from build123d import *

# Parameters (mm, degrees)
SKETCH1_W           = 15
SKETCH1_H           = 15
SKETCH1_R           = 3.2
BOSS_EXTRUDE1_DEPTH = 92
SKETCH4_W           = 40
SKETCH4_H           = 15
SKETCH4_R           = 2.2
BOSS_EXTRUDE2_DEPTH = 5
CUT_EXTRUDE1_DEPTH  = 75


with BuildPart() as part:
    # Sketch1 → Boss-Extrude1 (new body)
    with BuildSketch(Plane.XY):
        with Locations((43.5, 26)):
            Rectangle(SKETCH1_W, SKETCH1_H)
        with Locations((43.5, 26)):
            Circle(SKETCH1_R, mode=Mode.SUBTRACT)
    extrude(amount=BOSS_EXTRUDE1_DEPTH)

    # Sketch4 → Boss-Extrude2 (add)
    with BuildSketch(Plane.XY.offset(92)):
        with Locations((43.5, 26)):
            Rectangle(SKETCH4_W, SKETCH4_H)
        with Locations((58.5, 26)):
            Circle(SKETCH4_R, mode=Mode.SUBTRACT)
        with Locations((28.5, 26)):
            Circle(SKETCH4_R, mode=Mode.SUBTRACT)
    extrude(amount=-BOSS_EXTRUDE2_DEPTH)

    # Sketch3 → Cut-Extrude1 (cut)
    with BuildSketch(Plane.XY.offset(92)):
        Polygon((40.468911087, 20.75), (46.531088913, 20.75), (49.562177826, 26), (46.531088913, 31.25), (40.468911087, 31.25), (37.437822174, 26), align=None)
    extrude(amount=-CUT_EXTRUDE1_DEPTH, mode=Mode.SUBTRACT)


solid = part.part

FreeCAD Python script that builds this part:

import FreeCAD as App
import Part
import Sketcher

V = App.Vector
Q = App.Units.Quantity

doc = App.newDocument("Part")
body = doc.addObject("PartDesign::Body", "Body")

# Sketch on XY plane
sketch1 = doc.addObject("Sketcher::SketchObject", "Sketch")
body.addObject(sketch1)
sketch1.AttachmentSupport = (doc.XY_Plane, [""])
sketch1.MapMode = "FlatFace"
sketch1.addGeometry(Part.LineSegment(V(36, 33.5, 0), V(36, 18.5, 0)), False)
sketch1.addGeometry(Part.LineSegment(V(36, 18.5, 0), V(51, 18.5, 0)), False)
sketch1.addGeometry(Part.LineSegment(V(51, 18.5, 0), V(51, 33.5, 0)), False)
sketch1.addGeometry(Part.LineSegment(V(51, 33.5, 0), V(36, 33.5, 0)), False)
sketch1.addGeometry(Part.Circle(V(43.5, 26, 0), V(0, 0, 1), 3.2), False)
sketch1.addConstraint(Sketcher.Constraint("Coincident", 0, 2, 1, 1))
sketch1.addConstraint(Sketcher.Constraint("Coincident", 1, 2, 2, 1))
sketch1.addConstraint(Sketcher.Constraint("Coincident", 2, 2, 3, 1))
sketch1.addConstraint(Sketcher.Constraint("Coincident", 3, 2, 0, 1))
sketch1.addConstraint(Sketcher.Constraint("Vertical", 0))
sketch1.addConstraint(Sketcher.Constraint("Horizontal", 1))
sketch1.addConstraint(Sketcher.Constraint("Vertical", 2))
sketch1.addConstraint(Sketcher.Constraint("Horizontal", 3))
sketch1.addConstraint(Sketcher.Constraint("Equal", 3, 0))
sketch1.addConstraint(Sketcher.Constraint("Diameter", 4, Q("6.4 mm")))
sketch1.addConstraint(Sketcher.Constraint("DistanceX", 1, 1, 1, 2, Q("15 mm")))
sketch1.addConstraint(Sketcher.Constraint("DistanceY", -1, 1, 4, 3, Q("26 mm")))
sketch1.addConstraint(Sketcher.Constraint("DistanceX", -1, 1, 0, 2, Q("36 mm")))
sketch1.addConstraint(Sketcher.Constraint("DistanceX", -1, 1, 4, 3, Q("43.5 mm")))
sketch1.addConstraint(Sketcher.Constraint("DistanceY", -1, 1, 0, 2, Q("18.5 mm")))
pad1 = doc.addObject("PartDesign::Pad", "Pad")
body.addObject(pad1)
pad1.Profile = sketch1
pad1.Length = 92

# Sketch on XY plane
sketch2 = doc.addObject("Sketcher::SketchObject", "Sketch001")
body.addObject(sketch2)
sketch2.AttachmentSupport = (doc.XY_Plane, [""])
sketch2.MapMode = "FlatFace"
sketch2.AttachmentOffset = App.Placement(V(0, 0, 92), App.Rotation())
sketch2.addGeometry(Part.LineSegment(V(23.5, 33.5, 0), V(23.5, 18.5, 0)), False)
sketch2.addGeometry(Part.LineSegment(V(23.5, 18.5, 0), V(63.5, 18.5, 0)), False)
sketch2.addGeometry(Part.LineSegment(V(63.5, 18.5, 0), V(63.5, 33.5, 0)), False)
sketch2.addGeometry(Part.LineSegment(V(63.5, 33.5, 0), V(23.5, 33.5, 0)), False)
sketch2.addGeometry(Part.Circle(V(28.5, 26, 0), V(0, 0, 1), 2.2), False)
sketch2.addGeometry(Part.Circle(V(58.5, 26, 0), V(0, 0, 1), 2.2), False)
sketch2.addConstraint(Sketcher.Constraint("Coincident", 0, 2, 1, 1))
sketch2.addConstraint(Sketcher.Constraint("Coincident", 1, 2, 2, 1))
sketch2.addConstraint(Sketcher.Constraint("Coincident", 2, 2, 3, 1))
sketch2.addConstraint(Sketcher.Constraint("Coincident", 3, 2, 0, 1))
sketch2.addConstraint(Sketcher.Constraint("Vertical", 0))
sketch2.addConstraint(Sketcher.Constraint("Horizontal", 1))
sketch2.addConstraint(Sketcher.Constraint("Vertical", 2))
sketch2.addConstraint(Sketcher.Constraint("Horizontal", 3))
sketch2.addConstraint(Sketcher.Constraint("Equal", 4, 5))
sketch2.addConstraint(Sketcher.Constraint("Horizontal", 4, 3, 5, 3))
sketch2.addConstraint(Sketcher.Constraint("Diameter", 4, Q("4.4 mm")))
sketch2.addConstraint(Sketcher.Constraint("DistanceX", 1, 1, 1, 2, Q("40 mm")))
sketch2.addConstraint(Sketcher.Constraint("DistanceY", 0, 2, 0, 1, Q("15 mm")))
sketch2.addConstraint(Sketcher.Constraint("DistanceY", -1, 1, 4, 3, Q("26 mm")))
sketch2.addConstraint(Sketcher.Constraint("DistanceX", 4, 3, 5, 3, Q("30 mm")))
sketch2.addConstraint(Sketcher.Constraint("DistanceX", 0, 2, 4, 3, Q("5 mm")))
sketch2.addConstraint(Sketcher.Constraint("DistanceX", -1, 1, 4, 3, Q("28.5 mm")))
sketch2.addConstraint(Sketcher.Constraint("DistanceY", -1, 1, 0, 2, Q("18.5 mm")))
pad2 = doc.addObject("PartDesign::Pad", "Pad001")
body.addObject(pad2)
pad2.Profile = sketch2
pad2.Length = 5
pad2.Reversed = True

# Sketch on XY plane
sketch3 = doc.addObject("Sketcher::SketchObject", "Sketch002")
body.addObject(sketch3)
sketch3.AttachmentSupport = (doc.XY_Plane, [""])
sketch3.MapMode = "FlatFace"
sketch3.AttachmentOffset = App.Placement(V(0, 0, 92), App.Rotation())
sketch3.addGeometry(Part.LineSegment(V(40.468911, 20.75, 0), V(46.531089, 20.75, 0)), False)
sketch3.addGeometry(Part.LineSegment(V(46.531089, 20.75, 0), V(49.562178, 26, 0)), False)
sketch3.addGeometry(Part.LineSegment(V(49.562178, 26, 0), V(46.531089, 31.25, 0)), False)
sketch3.addGeometry(Part.LineSegment(V(46.531089, 31.25, 0), V(40.468911, 31.25, 0)), False)
sketch3.addGeometry(Part.LineSegment(V(40.468911, 31.25, 0), V(37.437822, 26, 0)), False)
sketch3.addGeometry(Part.LineSegment(V(37.437822, 26, 0), V(40.468911, 20.75, 0)), False)
sketch3.addConstraint(Sketcher.Constraint("Coincident", 0, 2, 1, 1))
sketch3.addConstraint(Sketcher.Constraint("Coincident", 1, 2, 2, 1))
sketch3.addConstraint(Sketcher.Constraint("Coincident", 2, 2, 3, 1))
sketch3.addConstraint(Sketcher.Constraint("Coincident", 3, 2, 4, 1))
sketch3.addConstraint(Sketcher.Constraint("Coincident", 4, 2, 5, 1))
sketch3.addConstraint(Sketcher.Constraint("Coincident", 5, 2, 0, 1))
sketch3.addConstraint(Sketcher.Constraint("Horizontal", 0))
sketch3.addConstraint(Sketcher.Constraint("Horizontal", 3))
sketch3.addConstraint(Sketcher.Constraint("Parallel", 1, 4))
sketch3.addConstraint(Sketcher.Constraint("Parallel", 2, 5))
sketch3.addConstraint(Sketcher.Constraint("Horizontal", 1, 2, 4, 2))
sketch3.addConstraint(Sketcher.Constraint("Vertical", 0, 2, 2, 2))
sketch3.addConstraint(Sketcher.Constraint("Vertical", 3, 2, 5, 2))
sketch3.addConstraint(Sketcher.Constraint("Angle", 1, Q("60 deg")))
sketch3.addConstraint(Sketcher.Constraint("DistanceY", -1, 1, 1, 2, Q("26 mm")))
sketch3.addConstraint(Sketcher.Constraint("DistanceY", 0, 2, 2, 2, Q("10.5 mm")))
sketch3.addConstraint(Sketcher.Constraint("DistanceX", 0, 1, 0, 2, Q("6.062178 mm")))
sketch3.addConstraint(Sketcher.Constraint("DistanceX", -1, 1, 0, 2, Q("46.531089 mm")))
pocket1 = doc.addObject("PartDesign::Pocket", "Pocket")
body.addObject(pocket1)
pocket1.Profile = sketch3
pocket1.Length = 75

doc.recompute()
